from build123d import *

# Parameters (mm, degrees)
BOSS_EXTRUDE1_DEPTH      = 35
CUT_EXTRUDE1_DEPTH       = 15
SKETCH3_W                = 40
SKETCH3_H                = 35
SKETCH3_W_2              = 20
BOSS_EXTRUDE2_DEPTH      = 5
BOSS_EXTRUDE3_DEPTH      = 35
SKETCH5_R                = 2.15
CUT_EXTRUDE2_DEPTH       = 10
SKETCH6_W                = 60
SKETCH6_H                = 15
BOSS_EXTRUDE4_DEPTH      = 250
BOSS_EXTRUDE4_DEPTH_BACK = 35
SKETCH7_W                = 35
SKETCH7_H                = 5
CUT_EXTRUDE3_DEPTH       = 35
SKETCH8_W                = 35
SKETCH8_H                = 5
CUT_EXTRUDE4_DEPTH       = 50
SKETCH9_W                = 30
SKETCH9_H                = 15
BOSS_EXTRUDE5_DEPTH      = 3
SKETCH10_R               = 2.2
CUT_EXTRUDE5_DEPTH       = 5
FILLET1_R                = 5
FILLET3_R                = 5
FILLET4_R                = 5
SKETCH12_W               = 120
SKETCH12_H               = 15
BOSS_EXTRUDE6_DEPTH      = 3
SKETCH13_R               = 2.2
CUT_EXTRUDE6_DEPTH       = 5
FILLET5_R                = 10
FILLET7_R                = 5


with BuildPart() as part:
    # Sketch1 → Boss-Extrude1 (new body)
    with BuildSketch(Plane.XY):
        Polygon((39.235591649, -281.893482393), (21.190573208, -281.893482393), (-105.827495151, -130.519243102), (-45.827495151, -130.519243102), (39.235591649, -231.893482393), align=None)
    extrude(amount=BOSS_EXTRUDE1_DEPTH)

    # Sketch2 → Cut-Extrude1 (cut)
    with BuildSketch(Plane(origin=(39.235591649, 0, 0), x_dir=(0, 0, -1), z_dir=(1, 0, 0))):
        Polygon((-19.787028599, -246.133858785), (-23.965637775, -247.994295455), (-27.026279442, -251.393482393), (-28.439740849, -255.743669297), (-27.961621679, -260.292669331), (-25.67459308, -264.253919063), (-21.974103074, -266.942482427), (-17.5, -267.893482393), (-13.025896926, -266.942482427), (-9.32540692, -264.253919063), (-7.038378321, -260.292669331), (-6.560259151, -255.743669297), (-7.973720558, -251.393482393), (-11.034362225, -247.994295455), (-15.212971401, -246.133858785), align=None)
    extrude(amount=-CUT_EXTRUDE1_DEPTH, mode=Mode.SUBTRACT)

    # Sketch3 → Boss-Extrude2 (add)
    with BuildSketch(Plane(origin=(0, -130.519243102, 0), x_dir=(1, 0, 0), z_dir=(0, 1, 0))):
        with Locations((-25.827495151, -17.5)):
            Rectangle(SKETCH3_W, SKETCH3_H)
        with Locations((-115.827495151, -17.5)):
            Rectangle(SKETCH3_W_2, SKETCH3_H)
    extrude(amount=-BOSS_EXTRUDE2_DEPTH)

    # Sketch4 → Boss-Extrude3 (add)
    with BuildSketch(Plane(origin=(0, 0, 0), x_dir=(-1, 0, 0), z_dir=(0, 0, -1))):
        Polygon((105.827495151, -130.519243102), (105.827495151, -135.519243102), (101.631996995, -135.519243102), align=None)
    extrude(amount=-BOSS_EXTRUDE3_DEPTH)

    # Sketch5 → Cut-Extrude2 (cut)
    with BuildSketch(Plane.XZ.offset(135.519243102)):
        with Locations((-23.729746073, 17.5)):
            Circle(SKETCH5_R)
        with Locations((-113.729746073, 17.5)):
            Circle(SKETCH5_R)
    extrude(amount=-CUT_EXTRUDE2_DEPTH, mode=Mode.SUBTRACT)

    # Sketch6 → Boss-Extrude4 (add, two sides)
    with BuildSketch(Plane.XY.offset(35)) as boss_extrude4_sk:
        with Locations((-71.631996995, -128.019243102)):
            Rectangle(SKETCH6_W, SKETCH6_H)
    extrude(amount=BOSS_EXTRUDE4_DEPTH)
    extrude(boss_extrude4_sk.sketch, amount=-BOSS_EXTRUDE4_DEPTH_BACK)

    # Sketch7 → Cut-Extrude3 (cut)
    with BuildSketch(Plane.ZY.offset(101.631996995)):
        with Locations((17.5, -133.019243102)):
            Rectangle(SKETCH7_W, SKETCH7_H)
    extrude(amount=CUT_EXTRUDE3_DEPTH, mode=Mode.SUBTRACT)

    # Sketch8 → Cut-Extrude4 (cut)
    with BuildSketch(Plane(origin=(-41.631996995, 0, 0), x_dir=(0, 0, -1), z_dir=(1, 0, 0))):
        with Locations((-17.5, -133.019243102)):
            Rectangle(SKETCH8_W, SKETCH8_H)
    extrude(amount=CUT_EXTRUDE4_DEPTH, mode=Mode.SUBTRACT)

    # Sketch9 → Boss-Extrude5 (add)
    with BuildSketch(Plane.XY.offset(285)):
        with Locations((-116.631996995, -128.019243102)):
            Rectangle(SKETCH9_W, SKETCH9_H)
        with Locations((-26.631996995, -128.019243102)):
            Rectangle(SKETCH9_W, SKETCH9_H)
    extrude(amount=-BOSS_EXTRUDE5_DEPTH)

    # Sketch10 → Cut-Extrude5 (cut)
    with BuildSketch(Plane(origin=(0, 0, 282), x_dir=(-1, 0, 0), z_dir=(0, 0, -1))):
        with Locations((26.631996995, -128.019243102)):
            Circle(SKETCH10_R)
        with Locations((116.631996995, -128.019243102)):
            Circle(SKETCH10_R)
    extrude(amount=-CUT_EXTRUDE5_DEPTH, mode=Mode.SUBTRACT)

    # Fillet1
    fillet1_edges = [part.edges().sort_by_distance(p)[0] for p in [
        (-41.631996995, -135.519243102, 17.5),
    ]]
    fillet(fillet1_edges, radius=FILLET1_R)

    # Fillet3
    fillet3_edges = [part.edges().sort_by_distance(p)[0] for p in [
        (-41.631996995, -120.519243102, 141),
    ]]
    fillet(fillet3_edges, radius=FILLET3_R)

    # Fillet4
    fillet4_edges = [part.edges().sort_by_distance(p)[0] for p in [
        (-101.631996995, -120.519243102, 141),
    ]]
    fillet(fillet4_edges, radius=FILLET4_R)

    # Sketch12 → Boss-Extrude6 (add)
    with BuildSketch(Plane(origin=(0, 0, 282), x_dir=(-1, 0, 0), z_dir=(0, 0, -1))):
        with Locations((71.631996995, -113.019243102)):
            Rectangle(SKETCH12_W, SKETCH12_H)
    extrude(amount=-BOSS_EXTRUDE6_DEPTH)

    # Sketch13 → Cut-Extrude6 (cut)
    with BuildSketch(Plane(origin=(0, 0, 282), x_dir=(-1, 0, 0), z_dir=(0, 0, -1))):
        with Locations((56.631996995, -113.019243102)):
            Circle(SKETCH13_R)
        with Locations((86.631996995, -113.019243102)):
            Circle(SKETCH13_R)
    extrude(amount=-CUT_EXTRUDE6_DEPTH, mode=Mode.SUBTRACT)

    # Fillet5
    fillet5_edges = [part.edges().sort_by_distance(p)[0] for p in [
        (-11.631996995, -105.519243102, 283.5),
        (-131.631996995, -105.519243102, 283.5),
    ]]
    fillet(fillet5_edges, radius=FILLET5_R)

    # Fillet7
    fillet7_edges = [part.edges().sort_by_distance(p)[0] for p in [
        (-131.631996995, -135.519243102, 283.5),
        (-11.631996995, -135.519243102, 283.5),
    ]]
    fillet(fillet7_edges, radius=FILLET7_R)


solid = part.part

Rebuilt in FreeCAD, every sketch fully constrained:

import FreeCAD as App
import Part
import Sketcher

V = App.Vector
Q = App.Units.Quantity


def edges_at(feature, points):
    """Names of the edges that pass closest to the given points."""
    edges = feature.Shape.Edges
    near = lambda p: min(range(len(edges)), key=lambda i: edges[i].distToShape(Part.Vertex(*p))[0])
    return sorted({f"Edge{near(p) + 1}" for p in points})


def add_polygon(sketch, points):
    """Adds a closed chain of lines whose ends are joined by coincident constraints."""
    first, n = sketch.GeometryCount, len(points)
    for a, b in zip(points, points[1:] + points[:1]):
        sketch.addGeometry(Part.LineSegment(App.Vector(*a, 0), App.Vector(*b, 0)), False)
    for i in range(n):
        sketch.addConstraint(Sketcher.Constraint("Coincident", first + i, 2, first + (i + 1) % n, 1))

doc = App.newDocument("Part")
params = doc.addObject("Spreadsheet::Sheet", "Params")
for row, (alias, value) in enumerate([
    ("sketch1_width", "60 mm"),
    ("sketch1_height", "50 mm"),
    ("pad1_length", "35 mm"),
    ("pocket1_length", "15 mm"),
    ("sketch3_width", "40 mm"),
    ("sketch3_width2", "20 mm"),
    ("sketch3_height", "35 mm"),
    ("pad2_length", "5 mm"),
    ("sketch4_height", "5 mm"),
    ("pad3_length", "35 mm"),
    ("sketch5_diameter", "4.3 mm"),
    ("pocket2_length", "10 mm"),
    ("sketch6_width", "60 mm"),
    ("sketch6_height", "15 mm"),
    ("pad4_length", "250 mm"),
    ("pad4_length2", "35 mm"),
    ("sketch7_width", "5 mm"),
    ("sketch7_height", "35 mm"),
    ("pocket3_length", "35 mm"),
    ("sketch8_width", "5 mm"),
    ("sketch8_height", "35 mm"),
    ("pocket4_length", "50 mm"),
    ("sketch9_width", "30 mm"),
    ("sketch9_height", "15 mm"),
    ("pad5_length", "3 mm"),
    ("sketch10_diameter", "4.4 mm"),
    ("pocket5_length", "5 mm"),
    ("fillet_radius", "5 mm"),
    ("fillet2_radius", "5 mm"),
    ("fillet3_radius", "5 mm"),
    ("sketch11_width", "120 mm"),
    ("sketch11_height", "15 mm"),
    ("pad6_length", "3 mm"),
    ("sketch12_diameter", "4.4 mm"),
    ("pocket6_length", "5 mm"),
    ("fillet4_radius", "10 mm"),
    ("fillet5_radius", "5 mm"),
], start=1):
    params.set(f"A{row}", alias)
    params.set(f"B{row}", "=" + value)
    params.setAlias(f"B{row}", alias)

body = doc.addObject("PartDesign::Body", "Body")
body.AllowCompound = True

# Sketch on XY plane
sketch1 = body.newObject("Sketcher::SketchObject", "Sketch")
sketch1.AttachmentSupport = (doc.getObject("XY_Plane"), [""])
sketch1.MapMode = "FlatFace"
add_polygon(sketch1, [(21.190573, -281.893482), (39.235592, -281.893482), (39.235592, -231.893482), (-45.827495, -130.519243), (-105.827495, -130.519243)])  # lines 0-4
sketch1.addConstraint(Sketcher.Constraint("Horizontal", 0))
sketch1.addConstraint(Sketcher.Constraint("Vertical", 1))
sketch1.addConstraint(Sketcher.Constraint("Horizontal", 3))
sketch1.addConstraint(Sketcher.Constraint("Parallel", 2, 4))
sketch1.addConstraint(Sketcher.Constraint("DistanceX", 3, 2, 3, 1, Q("60 mm")))
sketch1.addConstraint(Sketcher.Constraint("DistanceY", 1, 1, 1, 2, Q("50 mm")))
sketch1.addConstraint(Sketcher.Constraint("Angle", 2, Q("130 deg")))
sketch1.addConstraint(Sketcher.Constraint("Distance", 2, Q("132.334671 mm")))
sketch1.addConstraint(Sketcher.Constraint("DistanceX", -1, 1, 0, 2, Q("39.235592 mm")))
sketch1.addConstraint(Sketcher.Constraint("DistanceY", 0, 2, -1, 1, Q("281.893482 mm")))
sketch1.setExpression("Constraints[9]", "Params.sketch1_width")
sketch1.setExpression("Constraints[10]", "Params.sketch1_height")
pad1 = body.newObject("PartDesign::Pad", "Pad")
pad1.Profile = sketch1
pad1.setExpression("Length", "Params.pad1_length")

# Sketch on YZ plane
sketch2 = body.newObject("Sketcher::SketchObject", "Sketch001")
sketch2.AttachmentSupport = (doc.getObject("YZ_Plane"), [""])
sketch2.MapMode = "FlatFace"
sketch2.AttachmentOffset = App.Placement(V(0, 0, 39.235592), App.Rotation())
add_polygon(sketch2, [(-246.133859, 19.787029), (-247.994295, 23.965638), (-251.393482, 27.026279), (-255.743669, 28.439741), (-260.292669, 27.961622), (-264.253919, 25.674593), (-266.942482, 21.974103), (-267.893482, 17.5), (-266.942482, 13.025897), (-264.253919, 9.325407), (-260.292669, 7.038378), (-255.743669, 6.560259), (-251.393482, 7.973721), (-247.994295, 11.034362), (-246.133859, 15.212971)])  # lines 0-14
sketch2.addConstraint(Sketcher.Constraint("Vertical", 14))
sketch2.addConstraint(Sketcher.Constraint("Vertical", 5, 2, 7, 2))
sketch2.addConstraint(Sketcher.Constraint("Vertical", 4, 2, 8, 2))
sketch2.addConstraint(Sketcher.Constraint("Vertical", 3, 2, 9, 2))
sketch2.addConstraint(Sketcher.Constraint("Vertical", 2, 2, 10, 2))
sketch2.addConstraint(Sketcher.Constraint("Vertical", 1, 2, 11, 2))
sketch2.addConstraint(Sketcher.Constraint("Vertical", 0, 2, 12, 2))
sketch2.addConstraint(Sketcher.Constraint("Equal", 0, 1))
sketch2.addConstraint(Sketcher.Constraint("Equal", 1, 2))
sketch2.addConstraint(Sketcher.Constraint("Equal", 2, 3))
sketch2.addConstraint(Sketcher.Constraint("Equal", 3, 4))
sketch2.addConstraint(Sketcher.Constraint("Equal", 4, 5))
sketch2.addConstraint(Sketcher.Constraint("Equal", 5, 6))
sketch2.addConstraint(Sketcher.Constraint("Equal", 6, 7))
sketch2.addConstraint(Sketcher.Constraint("Equal", 7, 8))
sketch2.addConstraint(Sketcher.Constraint("Equal", 8, 9))
sketch2.addConstraint(Sketcher.Constraint("Equal", 9, 10))
sketch2.addConstraint(Sketcher.Constraint("Equal", 10, 11))
sketch2.addConstraint(Sketcher.Constraint("Equal", 11, 12))
sketch2.addConstraint(Sketcher.Constraint("Equal", 12, 13))
sketch2.addConstraint(Sketcher.Constraint("Angle", 0, Q("114 deg")))
sketch2.addConstraint(Sketcher.Constraint("Angle", 1, Q("138 deg")))
sketch2.addConstraint(Sketcher.Constraint("Angle", 2, Q("162 deg")))
sketch2.addConstraint(Sketcher.Constraint("Angle", 3, Q("-174 deg")))
sketch2.addConstraint(Sketcher.Constraint("Angle", 4, Q("-150 deg")))
sketch2.addConstraint(Sketcher.Constraint("Angle", 5, Q("-126 deg")))
sketch2.addConstraint(Sketcher.Constraint("Angle", 6, Q("-102 deg")))
sketch2.addConstraint(Sketcher.Constraint("DistanceY", -1, 1, 6, 2, Q("17.5 mm")))
sketch2.addConstraint(Sketcher.Constraint("DistanceX", 6, 2, 1, 2, Q("16.5 mm")))
sketch2.addConstraint(Sketcher.Constraint("DistanceX", 2, 2, -1, 1, Q("255.743669 mm")))
pocket1 = body.newObject("PartDesign::Pocket", "Pocket")
pocket1.Profile = sketch2
pocket1.setExpression("Length", "Params.pocket1_length")

# Sketch on XZ plane
sketch3 = body.newObject("Sketcher::SketchObject", "Sketch002")
sketch3.AttachmentSupport = (doc.getObject("XZ_Plane"), [""])
sketch3.MapMode = "FlatFace"
sketch3.AttachmentOffset = App.Placement(V(0, 0, 130.519243), App.Rotation())
add_polygon(sketch3, [(-45.827495, 0), (-45.827495, 35), (-5.827495, 35), (-5.827495, 0)])  # lines 0-3
add_polygon(sketch3, [(-125.827495, 0), (-125.827495, 35), (-105.827495, 35), (-105.827495, 0)])  # lines 4-7
sketch3.addConstraint(Sketcher.Constraint("Vertical", 0))
sketch3.addConstraint(Sketcher.Constraint("Horizontal", 1))
sketch3.addConstraint(Sketcher.Constraint("Vertical", 2))
sketch3.addConstraint(Sketcher.Constraint("Horizontal", 3))
sketch3.addConstraint(Sketcher.Constraint("Vertical", 4))
sketch3.addConstraint(Sketcher.Constraint("Horizontal", 5))
sketch3.addConstraint(Sketcher.Constraint("Vertical", 6))
sketch3.addConstraint(Sketcher.Constraint("Horizontal", 7))
sketch3.addConstraint(Sketcher.Constraint("PointOnObject", 2, 2, -1))
sketch3.addConstraint(Sketcher.Constraint("PointOnObject", 6, 2, -1))
sketch3.addConstraint(Sketcher.Constraint("Horizontal", 1, 2, 4, 2))
sketch3.addConstraint(Sketcher.Constraint("DistanceX", 1, 1, 1, 2, Q("40 mm")))
sketch3.addConstraint(Sketcher.Constraint("DistanceX", 5, 1, 5, 2, Q("20 mm")))
sketch3.addConstraint(Sketcher.Constraint("DistanceY", 0, 1, 0, 2, Q("35 mm")))
sketch3.addConstraint(Sketcher.Constraint("DistanceX", 4, 2, 0, 2, Q("80 mm")))
sketch3.addConstraint(Sketcher.Constraint("DistanceX", 0, 2, -1, 1, Q("45.827495 mm")))
sketch3.setExpression("Constraints[19]", "Params.sketch3_width")
sketch3.setExpression("Constraints[20]", "Params.sketch3_width2")
sketch3.setExpression("Constraints[21]", "Params.sketch3_height")
pad2 = body.newObject("PartDesign::Pad", "Pad001")
pad2.Profile = sketch3
pad2.setExpression("Length", "Params.pad2_length")

# Sketch on XY plane
sketch4 = body.newObject("Sketcher::SketchObject", "Sketch003")
sketch4.AttachmentSupport = (doc.getObject("XY_Plane"), [""])
sketch4.MapMode = "FlatFace"
add_polygon(sketch4, [(-105.827495, -135.519243), (-105.827495, -130.519243), (-101.631997, -135.519243)])  # lines 0-2
sketch4.addConstraint(Sketcher.Constraint("Vertical", 0))
sketch4.addConstraint(Sketcher.Constraint("Horizontal", 2))
sketch4.addConstraint(Sketcher.Constraint("DistanceY", 0, 1, 0, 2, Q("5 mm")))
sketch4.addConstraint(Sketcher.Constraint("Angle", 1, Q("-50 deg")))
sketch4.addConstraint(Sketcher.Constraint("DistanceX", 0, 2, -1, 1, Q("105.827495 mm")))
sketch4.addConstraint(Sketcher.Constraint("DistanceY", 0, 2, -1, 1, Q("130.519243 mm")))
sketch4.setExpression("Constraints[5]", "Params.sketch4_height")
pad3 = body.newObject("PartDesign::Pad", "Pad002")
pad3.Profile = sketch4
pad3.setExpression("Length", "Params.pad3_length")

# Sketch on XZ plane
sketch5 = body.newObject("Sketcher::SketchObject", "Sketch004")
sketch5.AttachmentSupport = (doc.getObject("XZ_Plane"), [""])
sketch5.MapMode = "FlatFace"
sketch5.AttachmentOffset = App.Placement(V(0, 0, 135.519243), App.Rotation())
sketch5.addGeometry(Part.Circle(V(-23.729746, 17.5, 0), V(0, 0, 1), 2.15), False)
sketch5.addGeometry(Part.Circle(V(-113.729746, 17.5, 0), V(0, 0, 1), 2.15), False)
sketch5.addConstraint(Sketcher.Constraint("Equal", 0, 1))
sketch5.addConstraint(Sketcher.Constraint("Horizontal", 0, 3, 1, 3))
sketch5.addConstraint(Sketcher.Constraint("Diameter", 0, Q("4.3 mm")))
sketch5.addConstraint(Sketcher.Constraint("DistanceX", 1, 3, 0, 3, Q("90 mm")))
sketch5.addConstraint(Sketcher.Constraint("DistanceY", -1, 1, 0, 3, Q("17.5 mm")))
sketch5.addConstraint(Sketcher.Constraint("DistanceX", 0, 3, -1, 1, Q("23.729746 mm")))
sketch5.setExpression("Constraints[2]", "Params.sketch5_diameter")
pocket2 = body.newObject("PartDesign::Pocket", "Pocket001")
pocket2.Profile = sketch5
pocket2.setExpression("Length", "Params.pocket2_length")

# Sketch on XY plane
sketch6 = body.newObject("Sketcher::SketchObject", "Sketch005")
sketch6.AttachmentSupport = (doc.getObject("XY_Plane"), [""])
sketch6.MapMode = "FlatFace"
sketch6.AttachmentOffset = App.Placement(V(0, 0, 35), App.Rotation())
add_polygon(sketch6, [(-101.631997, -120.519243), (-101.631997, -135.519243), (-41.631997, -135.519243), (-41.631997, -120.519243)])  # lines 0-3
sketch6.addConstraint(Sketcher.Constraint("Vertical", 0))
sketch6.addConstraint(Sketcher.Constraint("Horizontal", 1))
sketch6.addConstraint(Sketcher.Constraint("Vertical", 2))
sketch6.addConstraint(Sketcher.Constraint("Horizontal", 3))
sketch6.addConstraint(Sketcher.Constraint("DistanceX", 1, 1, 1, 2, Q("60 mm")))
sketch6.addConstraint(Sketcher.Constraint("DistanceY", 0, 2, 0, 1, Q("15 mm")))
sketch6.addConstraint(Sketcher.Constraint("DistanceX", 0, 2, -1, 1, Q("101.631997 mm")))
sketch6.addConstraint(Sketcher.Constraint("DistanceY", 0, 2, -1, 1, Q("135.519243 mm")))
sketch6.setExpression("Constraints[8]", "Params.sketch6_width")
sketch6.setExpression("Constraints[9]", "Params.sketch6_height")
pad4 = body.newObject("PartDesign::Pad", "Pad003")
pad4.Profile = sketch6
pad4.Type = "TwoLengths"
pad4.setExpression("Length", "Params.pad4_length")
pad4.setExpression("Length2", "Params.pad4_length2")

# Sketch on YZ plane
sketch7 = body.newObject("Sketcher::SketchObject", "Sketch006")
sketch7.AttachmentSupport = (doc.getObject("YZ_Plane"), [""])
sketch7.MapMode = "FlatFace"
sketch7.AttachmentOffset = App.Placement(V(0, 0, -101.631997), App.Rotation())
add_polygon(sketch7, [(-130.519243, 0), (-135.519243, 0), (-135.519243, 35), (-130.519243, 35)])  # lines 0-3
sketch7.addConstraint(Sketcher.Constraint("Horizontal", 0))
sketch7.addConstraint(Sketcher.Constraint("Vertical", 1))
sketch7.addConstraint(Sketcher.Constraint("Horizontal", 2))
sketch7.addConstraint(Sketcher.Constraint("Vertical", 3))
sketch7.addConstraint(Sketcher.Constraint("PointOnObject", 0, 2, -1))
sketch7.addConstraint(Sketcher.Constraint("DistanceX", 0, 2, 0, 1, Q("5 mm")))
sketch7.addConstraint(Sketcher.Constraint("DistanceY", 1, 1, 1, 2, Q("35 mm")))
sketch7.addConstraint(Sketcher.Constraint("DistanceX", 0, 2, -1, 1, Q("135.519243 mm")))
sketch7.setExpression("Constraints[9]", "Params.sketch7_width")
sketch7.setExpression("Constraints[10]", "Params.sketch7_height")
pocket3 = body.newObject("PartDesign::Pocket", "Pocket002")
pocket3.Profile = sketch7
pocket3.setExpression("Length", "Params.pocket3_length")

# Sketch on YZ plane
sketch8 = body.newObject("Sketcher::SketchObject", "Sketch007")
sketch8.AttachmentSupport = (doc.getObject("YZ_Plane"), [""])
sketch8.MapMode = "FlatFace"
sketch8.AttachmentOffset = App.Placement(V(0, 0, -41.631997), App.Rotation())
add_polygon(sketch8, [(-130.519243, 35), (-135.519243, 35), (-135.519243, 0), (-130.519243, 0)])  # lines 0-3
sketch8.addConstraint(Sketcher.Constraint("Horizontal", 0))
sketch8.addConstraint(Sketcher.Constraint("Vertical", 1))
sketch8.addConstraint(Sketcher.Constraint("Horizontal", 2))
sketch8.addConstraint(Sketcher.Constraint("Vertical", 3))
sketch8.addConstraint(Sketcher.Constraint("PointOnObject", 1, 2, -1))
sketch8.addConstraint(Sketcher.Constraint("DistanceX", 0, 2, 0, 1, Q("5 mm")))
sketch8.addConstraint(Sketcher.Constraint("DistanceY", 1, 2, 1, 1, Q("35 mm")))
sketch8.addConstraint(Sketcher.Constraint("DistanceX", 0, 2, -1, 1, Q("135.519243 mm")))
sketch8.setExpression("Constraints[9]", "Params.sketch8_width")
sketch8.setExpression("Constraints[10]", "Params.sketch8_height")
pocket4 = body.newObject("PartDesign::Pocket", "Pocket003")
pocket4.Profile = sketch8
pocket4.setExpression("Length", "Params.pocket4_length")
pocket4.Reversed = True

# Sketch on XY plane
sketch9 = body.newObject("Sketcher::SketchObject", "Sketch008")
sketch9.AttachmentSupport = (doc.getObject("XY_Plane"), [""])
sketch9.MapMode = "FlatFace"
sketch9.AttachmentOffset = App.Placement(V(0, 0, 285), App.Rotation())
add_polygon(sketch9, [(-131.631997, -120.519243), (-131.631997, -135.519243), (-101.631997, -135.519243), (-101.631997, -120.519243)])  # lines 0-3
add_polygon(sketch9, [(-41.631997, -120.519243), (-41.631997, -135.519243), (-11.631997, -135.519243), (-11.631997, -120.519243)])  # lines 4-7
sketch9.addConstraint(Sketcher.Constraint("Vertical", 0))
sketch9.addConstraint(Sketcher.Constraint("Horizontal", 1))
sketch9.addConstraint(Sketcher.Constraint("Vertical", 2))
sketch9.addConstraint(Sketcher.Constraint("Horizontal", 3))
sketch9.addConstraint(Sketcher.Constraint("Vertical", 4))
sketch9.addConstraint(Sketcher.Constraint("Horizontal", 5))
sketch9.addConstraint(Sketcher.Constraint("Vertical", 6))
sketch9.addConstraint(Sketcher.Constraint("Horizontal", 7))
sketch9.addConstraint(Sketcher.Constraint("Horizontal", 1, 2, 4, 2))
sketch9.addConstraint(Sketcher.Constraint("Horizontal", 3, 2, 6, 2))
sketch9.addConstraint(Sketcher.Constraint("Equal", 3, 5))
sketch9.addConstraint(Sketcher.Constraint("DistanceX", 1, 1, 1, 2, Q("30 mm")))
sketch9.addConstraint(Sketcher.Constraint("DistanceY", 0, 2, 0, 1, Q("15 mm")))
sketch9.addConstraint(Sketcher.Constraint("DistanceX", 1, 2, 4, 2, Q("60 mm")))
sketch9.addConstraint(Sketcher.Constraint("DistanceX", 0, 2, -1, 1, Q("131.631997 mm")))
sketch9.addConstraint(Sketcher.Constraint("DistanceY", 0, 2, -1, 1, Q("135.519243 mm")))
sketch9.setExpression("Constraints[19]", "Params.sketch9_width")
sketch9.setExpression("Constraints[20]", "Params.sketch9_height")
pad5 = body.newObject("PartDesign::Pad", "Pad004")
pad5.Profile = sketch9
pad5.setExpression("Length", "Params.pad5_length")
pad5.Reversed = True

# Sketch on XY plane
sketch10 = body.newObject("Sketcher::SketchObject", "Sketch009")
sketch10.AttachmentSupport = (doc.getObject("XY_Plane"), [""])
sketch10.MapMode = "FlatFace"
sketch10.AttachmentOffset = App.Placement(V(0, 0, 282), App.Rotation())
sketch10.addGeometry(Part.Circle(V(-26.631997, -128.019243, 0), V(0, 0, 1), 2.2), False)
sketch10.addGeometry(Part.Circle(V(-116.631997, -128.019243, 0), V(0, 0, 1), 2.2), False)
sketch10.addConstraint(Sketcher.Constraint("Equal", 0, 1))
sketch10.addConstraint(Sketcher.Constraint("Horizontal", 0, 3, 1, 3))
sketch10.addConstraint(Sketcher.Constraint("Diameter", 0, Q("4.4 mm")))
sketch10.addConstraint(Sketcher.Constraint("DistanceX", 1, 3, 0, 3, Q("90 mm")))
sketch10.addConstraint(Sketcher.Constraint("DistanceX", 0, 3, -1, 1, Q("26.631997 mm")))
sketch10.addConstraint(Sketcher.Constraint("DistanceY", 0, 3, -1, 1, Q("128.019243 mm")))
sketch10.setExpression("Constraints[2]", "Params.sketch10_diameter")
pocket5 = body.newObject("PartDesign::Pocket", "Pocket004")
pocket5.Profile = sketch10
pocket5.setExpression("Length", "Params.pocket5_length")
pocket5.Reversed = True
doc.recompute()

fillet = body.newObject("PartDesign::Fillet", "Fillet")
fillet.Base = (pocket5, edges_at(pocket5, [(-41.632, -135.519, 17.5)]))
fillet.setExpression("Radius", "Params.fillet_radius")
doc.recompute()

fillet2 = body.newObject("PartDesign::Fillet", "Fillet001")
fillet2.Base = (fillet, edges_at(fillet, [(-41.632, -120.519, 141)]))
fillet2.setExpression("Radius", "Params.fillet2_radius")
doc.recompute()

fillet3 = body.newObject("PartDesign::Fillet", "Fillet002")
fillet3.Base = (fillet2, edges_at(fillet2, [(-101.632, -120.519, 141)]))
fillet3.setExpression("Radius", "Params.fillet3_radius")

# Sketch on XY plane
sketch11 = body.newObject("Sketcher::SketchObject", "Sketch010")
sketch11.AttachmentSupport = (doc.getObject("XY_Plane"), [""])
sketch11.MapMode = "FlatFace"
sketch11.AttachmentOffset = App.Placement(V(0, 0, 282), App.Rotation())
add_polygon(sketch11, [(-11.631997, -105.519243), (-11.631997, -120.519243), (-131.631997, -120.519243), (-131.631997, -105.519243)])  # lines 0-3
sketch11.addConstraint(Sketcher.Constraint("Vertical", 0))
sketch11.addConstraint(Sketcher.Constraint("Horizontal", 1))
sketch11.addConstraint(Sketcher.Constraint("Vertical", 2))
sketch11.addConstraint(Sketcher.Constraint("Horizontal", 3))
sketch11.addConstraint(Sketcher.Constraint("DistanceX", 1, 2, 1, 1, Q("120 mm")))
sketch11.addConstraint(Sketcher.Constraint("DistanceY", 0, 2, 0, 1, Q("15 mm")))
sketch11.addConstraint(Sketcher.Constraint("DistanceX", 0, 2, -1, 1, Q("11.631997 mm")))
sketch11.addConstraint(Sketcher.Constraint("DistanceY", 0, 2, -1, 1, Q("120.519243 mm")))
sketch11.setExpression("Constraints[8]", "Params.sketch11_width")
sketch11.setExpression("Constraints[9]", "Params.sketch11_height")
pad6 = body.newObject("PartDesign::Pad", "Pad005")
pad6.Profile = sketch11
pad6.setExpression("Length", "Params.pad6_length")

# Sketch on XY plane
sketch12 = body.newObject("Sketcher::SketchObject", "Sketch011")
sketch12.AttachmentSupport = (doc.getObject("XY_Plane"), [""])
sketch12.MapMode = "FlatFace"
sketch12.AttachmentOffset = App.Placement(V(0, 0, 282), App.Rotation())
sketch12.addGeometry(Part.Circle(V(-56.631997, -113.019243, 0), V(0, 0, 1), 2.2), False)
sketch12.addGeometry(Part.Circle(V(-86.631997, -113.019243, 0), V(0, 0, 1), 2.2), False)
sketch12.addConstraint(Sketcher.Constraint("Equal", 0, 1))
sketch12.addConstraint(Sketcher.Constraint("Horizontal", 0, 3, 1, 3))
sketch12.addConstraint(Sketcher.Constraint("Diameter", 0, Q("4.4 mm")))
sketch12.addConstraint(Sketcher.Constraint("DistanceX", 1, 3, 0, 3, Q("30 mm")))
sketch12.addConstraint(Sketcher.Constraint("DistanceX", 0, 3, -1, 1, Q("56.631997 mm")))
sketch12.addConstraint(Sketcher.Constraint("DistanceY", 0, 3, -1, 1, Q("113.019243 mm")))
sketch12.setExpression("Constraints[2]", "Params.sketch12_diameter")
pocket6 = body.newObject("PartDesign::Pocket", "Pocket005")
pocket6.Profile = sketch12
pocket6.setExpression("Length", "Params.pocket6_length")
pocket6.Reversed = True
doc.recompute()

fillet4 = body.newObject("PartDesign::Fillet", "Fillet003")
fillet4.Base = (pocket6, edges_at(pocket6, [(-11.632, -105.519, 283.5), (-131.632, -105.519, 283.5)]))
fillet4.setExpression("Radius", "Params.fillet4_radius")
doc.recompute()

fillet5 = body.newObject("PartDesign::Fillet", "Fillet004")
fillet5.Base = (fillet4, edges_at(fillet4, [(-131.632, -135.519, 283.5), (-11.632, -135.519, 283.5)]))
fillet5.setExpression("Radius", "Params.fillet5_radius")

doc.recompute()
